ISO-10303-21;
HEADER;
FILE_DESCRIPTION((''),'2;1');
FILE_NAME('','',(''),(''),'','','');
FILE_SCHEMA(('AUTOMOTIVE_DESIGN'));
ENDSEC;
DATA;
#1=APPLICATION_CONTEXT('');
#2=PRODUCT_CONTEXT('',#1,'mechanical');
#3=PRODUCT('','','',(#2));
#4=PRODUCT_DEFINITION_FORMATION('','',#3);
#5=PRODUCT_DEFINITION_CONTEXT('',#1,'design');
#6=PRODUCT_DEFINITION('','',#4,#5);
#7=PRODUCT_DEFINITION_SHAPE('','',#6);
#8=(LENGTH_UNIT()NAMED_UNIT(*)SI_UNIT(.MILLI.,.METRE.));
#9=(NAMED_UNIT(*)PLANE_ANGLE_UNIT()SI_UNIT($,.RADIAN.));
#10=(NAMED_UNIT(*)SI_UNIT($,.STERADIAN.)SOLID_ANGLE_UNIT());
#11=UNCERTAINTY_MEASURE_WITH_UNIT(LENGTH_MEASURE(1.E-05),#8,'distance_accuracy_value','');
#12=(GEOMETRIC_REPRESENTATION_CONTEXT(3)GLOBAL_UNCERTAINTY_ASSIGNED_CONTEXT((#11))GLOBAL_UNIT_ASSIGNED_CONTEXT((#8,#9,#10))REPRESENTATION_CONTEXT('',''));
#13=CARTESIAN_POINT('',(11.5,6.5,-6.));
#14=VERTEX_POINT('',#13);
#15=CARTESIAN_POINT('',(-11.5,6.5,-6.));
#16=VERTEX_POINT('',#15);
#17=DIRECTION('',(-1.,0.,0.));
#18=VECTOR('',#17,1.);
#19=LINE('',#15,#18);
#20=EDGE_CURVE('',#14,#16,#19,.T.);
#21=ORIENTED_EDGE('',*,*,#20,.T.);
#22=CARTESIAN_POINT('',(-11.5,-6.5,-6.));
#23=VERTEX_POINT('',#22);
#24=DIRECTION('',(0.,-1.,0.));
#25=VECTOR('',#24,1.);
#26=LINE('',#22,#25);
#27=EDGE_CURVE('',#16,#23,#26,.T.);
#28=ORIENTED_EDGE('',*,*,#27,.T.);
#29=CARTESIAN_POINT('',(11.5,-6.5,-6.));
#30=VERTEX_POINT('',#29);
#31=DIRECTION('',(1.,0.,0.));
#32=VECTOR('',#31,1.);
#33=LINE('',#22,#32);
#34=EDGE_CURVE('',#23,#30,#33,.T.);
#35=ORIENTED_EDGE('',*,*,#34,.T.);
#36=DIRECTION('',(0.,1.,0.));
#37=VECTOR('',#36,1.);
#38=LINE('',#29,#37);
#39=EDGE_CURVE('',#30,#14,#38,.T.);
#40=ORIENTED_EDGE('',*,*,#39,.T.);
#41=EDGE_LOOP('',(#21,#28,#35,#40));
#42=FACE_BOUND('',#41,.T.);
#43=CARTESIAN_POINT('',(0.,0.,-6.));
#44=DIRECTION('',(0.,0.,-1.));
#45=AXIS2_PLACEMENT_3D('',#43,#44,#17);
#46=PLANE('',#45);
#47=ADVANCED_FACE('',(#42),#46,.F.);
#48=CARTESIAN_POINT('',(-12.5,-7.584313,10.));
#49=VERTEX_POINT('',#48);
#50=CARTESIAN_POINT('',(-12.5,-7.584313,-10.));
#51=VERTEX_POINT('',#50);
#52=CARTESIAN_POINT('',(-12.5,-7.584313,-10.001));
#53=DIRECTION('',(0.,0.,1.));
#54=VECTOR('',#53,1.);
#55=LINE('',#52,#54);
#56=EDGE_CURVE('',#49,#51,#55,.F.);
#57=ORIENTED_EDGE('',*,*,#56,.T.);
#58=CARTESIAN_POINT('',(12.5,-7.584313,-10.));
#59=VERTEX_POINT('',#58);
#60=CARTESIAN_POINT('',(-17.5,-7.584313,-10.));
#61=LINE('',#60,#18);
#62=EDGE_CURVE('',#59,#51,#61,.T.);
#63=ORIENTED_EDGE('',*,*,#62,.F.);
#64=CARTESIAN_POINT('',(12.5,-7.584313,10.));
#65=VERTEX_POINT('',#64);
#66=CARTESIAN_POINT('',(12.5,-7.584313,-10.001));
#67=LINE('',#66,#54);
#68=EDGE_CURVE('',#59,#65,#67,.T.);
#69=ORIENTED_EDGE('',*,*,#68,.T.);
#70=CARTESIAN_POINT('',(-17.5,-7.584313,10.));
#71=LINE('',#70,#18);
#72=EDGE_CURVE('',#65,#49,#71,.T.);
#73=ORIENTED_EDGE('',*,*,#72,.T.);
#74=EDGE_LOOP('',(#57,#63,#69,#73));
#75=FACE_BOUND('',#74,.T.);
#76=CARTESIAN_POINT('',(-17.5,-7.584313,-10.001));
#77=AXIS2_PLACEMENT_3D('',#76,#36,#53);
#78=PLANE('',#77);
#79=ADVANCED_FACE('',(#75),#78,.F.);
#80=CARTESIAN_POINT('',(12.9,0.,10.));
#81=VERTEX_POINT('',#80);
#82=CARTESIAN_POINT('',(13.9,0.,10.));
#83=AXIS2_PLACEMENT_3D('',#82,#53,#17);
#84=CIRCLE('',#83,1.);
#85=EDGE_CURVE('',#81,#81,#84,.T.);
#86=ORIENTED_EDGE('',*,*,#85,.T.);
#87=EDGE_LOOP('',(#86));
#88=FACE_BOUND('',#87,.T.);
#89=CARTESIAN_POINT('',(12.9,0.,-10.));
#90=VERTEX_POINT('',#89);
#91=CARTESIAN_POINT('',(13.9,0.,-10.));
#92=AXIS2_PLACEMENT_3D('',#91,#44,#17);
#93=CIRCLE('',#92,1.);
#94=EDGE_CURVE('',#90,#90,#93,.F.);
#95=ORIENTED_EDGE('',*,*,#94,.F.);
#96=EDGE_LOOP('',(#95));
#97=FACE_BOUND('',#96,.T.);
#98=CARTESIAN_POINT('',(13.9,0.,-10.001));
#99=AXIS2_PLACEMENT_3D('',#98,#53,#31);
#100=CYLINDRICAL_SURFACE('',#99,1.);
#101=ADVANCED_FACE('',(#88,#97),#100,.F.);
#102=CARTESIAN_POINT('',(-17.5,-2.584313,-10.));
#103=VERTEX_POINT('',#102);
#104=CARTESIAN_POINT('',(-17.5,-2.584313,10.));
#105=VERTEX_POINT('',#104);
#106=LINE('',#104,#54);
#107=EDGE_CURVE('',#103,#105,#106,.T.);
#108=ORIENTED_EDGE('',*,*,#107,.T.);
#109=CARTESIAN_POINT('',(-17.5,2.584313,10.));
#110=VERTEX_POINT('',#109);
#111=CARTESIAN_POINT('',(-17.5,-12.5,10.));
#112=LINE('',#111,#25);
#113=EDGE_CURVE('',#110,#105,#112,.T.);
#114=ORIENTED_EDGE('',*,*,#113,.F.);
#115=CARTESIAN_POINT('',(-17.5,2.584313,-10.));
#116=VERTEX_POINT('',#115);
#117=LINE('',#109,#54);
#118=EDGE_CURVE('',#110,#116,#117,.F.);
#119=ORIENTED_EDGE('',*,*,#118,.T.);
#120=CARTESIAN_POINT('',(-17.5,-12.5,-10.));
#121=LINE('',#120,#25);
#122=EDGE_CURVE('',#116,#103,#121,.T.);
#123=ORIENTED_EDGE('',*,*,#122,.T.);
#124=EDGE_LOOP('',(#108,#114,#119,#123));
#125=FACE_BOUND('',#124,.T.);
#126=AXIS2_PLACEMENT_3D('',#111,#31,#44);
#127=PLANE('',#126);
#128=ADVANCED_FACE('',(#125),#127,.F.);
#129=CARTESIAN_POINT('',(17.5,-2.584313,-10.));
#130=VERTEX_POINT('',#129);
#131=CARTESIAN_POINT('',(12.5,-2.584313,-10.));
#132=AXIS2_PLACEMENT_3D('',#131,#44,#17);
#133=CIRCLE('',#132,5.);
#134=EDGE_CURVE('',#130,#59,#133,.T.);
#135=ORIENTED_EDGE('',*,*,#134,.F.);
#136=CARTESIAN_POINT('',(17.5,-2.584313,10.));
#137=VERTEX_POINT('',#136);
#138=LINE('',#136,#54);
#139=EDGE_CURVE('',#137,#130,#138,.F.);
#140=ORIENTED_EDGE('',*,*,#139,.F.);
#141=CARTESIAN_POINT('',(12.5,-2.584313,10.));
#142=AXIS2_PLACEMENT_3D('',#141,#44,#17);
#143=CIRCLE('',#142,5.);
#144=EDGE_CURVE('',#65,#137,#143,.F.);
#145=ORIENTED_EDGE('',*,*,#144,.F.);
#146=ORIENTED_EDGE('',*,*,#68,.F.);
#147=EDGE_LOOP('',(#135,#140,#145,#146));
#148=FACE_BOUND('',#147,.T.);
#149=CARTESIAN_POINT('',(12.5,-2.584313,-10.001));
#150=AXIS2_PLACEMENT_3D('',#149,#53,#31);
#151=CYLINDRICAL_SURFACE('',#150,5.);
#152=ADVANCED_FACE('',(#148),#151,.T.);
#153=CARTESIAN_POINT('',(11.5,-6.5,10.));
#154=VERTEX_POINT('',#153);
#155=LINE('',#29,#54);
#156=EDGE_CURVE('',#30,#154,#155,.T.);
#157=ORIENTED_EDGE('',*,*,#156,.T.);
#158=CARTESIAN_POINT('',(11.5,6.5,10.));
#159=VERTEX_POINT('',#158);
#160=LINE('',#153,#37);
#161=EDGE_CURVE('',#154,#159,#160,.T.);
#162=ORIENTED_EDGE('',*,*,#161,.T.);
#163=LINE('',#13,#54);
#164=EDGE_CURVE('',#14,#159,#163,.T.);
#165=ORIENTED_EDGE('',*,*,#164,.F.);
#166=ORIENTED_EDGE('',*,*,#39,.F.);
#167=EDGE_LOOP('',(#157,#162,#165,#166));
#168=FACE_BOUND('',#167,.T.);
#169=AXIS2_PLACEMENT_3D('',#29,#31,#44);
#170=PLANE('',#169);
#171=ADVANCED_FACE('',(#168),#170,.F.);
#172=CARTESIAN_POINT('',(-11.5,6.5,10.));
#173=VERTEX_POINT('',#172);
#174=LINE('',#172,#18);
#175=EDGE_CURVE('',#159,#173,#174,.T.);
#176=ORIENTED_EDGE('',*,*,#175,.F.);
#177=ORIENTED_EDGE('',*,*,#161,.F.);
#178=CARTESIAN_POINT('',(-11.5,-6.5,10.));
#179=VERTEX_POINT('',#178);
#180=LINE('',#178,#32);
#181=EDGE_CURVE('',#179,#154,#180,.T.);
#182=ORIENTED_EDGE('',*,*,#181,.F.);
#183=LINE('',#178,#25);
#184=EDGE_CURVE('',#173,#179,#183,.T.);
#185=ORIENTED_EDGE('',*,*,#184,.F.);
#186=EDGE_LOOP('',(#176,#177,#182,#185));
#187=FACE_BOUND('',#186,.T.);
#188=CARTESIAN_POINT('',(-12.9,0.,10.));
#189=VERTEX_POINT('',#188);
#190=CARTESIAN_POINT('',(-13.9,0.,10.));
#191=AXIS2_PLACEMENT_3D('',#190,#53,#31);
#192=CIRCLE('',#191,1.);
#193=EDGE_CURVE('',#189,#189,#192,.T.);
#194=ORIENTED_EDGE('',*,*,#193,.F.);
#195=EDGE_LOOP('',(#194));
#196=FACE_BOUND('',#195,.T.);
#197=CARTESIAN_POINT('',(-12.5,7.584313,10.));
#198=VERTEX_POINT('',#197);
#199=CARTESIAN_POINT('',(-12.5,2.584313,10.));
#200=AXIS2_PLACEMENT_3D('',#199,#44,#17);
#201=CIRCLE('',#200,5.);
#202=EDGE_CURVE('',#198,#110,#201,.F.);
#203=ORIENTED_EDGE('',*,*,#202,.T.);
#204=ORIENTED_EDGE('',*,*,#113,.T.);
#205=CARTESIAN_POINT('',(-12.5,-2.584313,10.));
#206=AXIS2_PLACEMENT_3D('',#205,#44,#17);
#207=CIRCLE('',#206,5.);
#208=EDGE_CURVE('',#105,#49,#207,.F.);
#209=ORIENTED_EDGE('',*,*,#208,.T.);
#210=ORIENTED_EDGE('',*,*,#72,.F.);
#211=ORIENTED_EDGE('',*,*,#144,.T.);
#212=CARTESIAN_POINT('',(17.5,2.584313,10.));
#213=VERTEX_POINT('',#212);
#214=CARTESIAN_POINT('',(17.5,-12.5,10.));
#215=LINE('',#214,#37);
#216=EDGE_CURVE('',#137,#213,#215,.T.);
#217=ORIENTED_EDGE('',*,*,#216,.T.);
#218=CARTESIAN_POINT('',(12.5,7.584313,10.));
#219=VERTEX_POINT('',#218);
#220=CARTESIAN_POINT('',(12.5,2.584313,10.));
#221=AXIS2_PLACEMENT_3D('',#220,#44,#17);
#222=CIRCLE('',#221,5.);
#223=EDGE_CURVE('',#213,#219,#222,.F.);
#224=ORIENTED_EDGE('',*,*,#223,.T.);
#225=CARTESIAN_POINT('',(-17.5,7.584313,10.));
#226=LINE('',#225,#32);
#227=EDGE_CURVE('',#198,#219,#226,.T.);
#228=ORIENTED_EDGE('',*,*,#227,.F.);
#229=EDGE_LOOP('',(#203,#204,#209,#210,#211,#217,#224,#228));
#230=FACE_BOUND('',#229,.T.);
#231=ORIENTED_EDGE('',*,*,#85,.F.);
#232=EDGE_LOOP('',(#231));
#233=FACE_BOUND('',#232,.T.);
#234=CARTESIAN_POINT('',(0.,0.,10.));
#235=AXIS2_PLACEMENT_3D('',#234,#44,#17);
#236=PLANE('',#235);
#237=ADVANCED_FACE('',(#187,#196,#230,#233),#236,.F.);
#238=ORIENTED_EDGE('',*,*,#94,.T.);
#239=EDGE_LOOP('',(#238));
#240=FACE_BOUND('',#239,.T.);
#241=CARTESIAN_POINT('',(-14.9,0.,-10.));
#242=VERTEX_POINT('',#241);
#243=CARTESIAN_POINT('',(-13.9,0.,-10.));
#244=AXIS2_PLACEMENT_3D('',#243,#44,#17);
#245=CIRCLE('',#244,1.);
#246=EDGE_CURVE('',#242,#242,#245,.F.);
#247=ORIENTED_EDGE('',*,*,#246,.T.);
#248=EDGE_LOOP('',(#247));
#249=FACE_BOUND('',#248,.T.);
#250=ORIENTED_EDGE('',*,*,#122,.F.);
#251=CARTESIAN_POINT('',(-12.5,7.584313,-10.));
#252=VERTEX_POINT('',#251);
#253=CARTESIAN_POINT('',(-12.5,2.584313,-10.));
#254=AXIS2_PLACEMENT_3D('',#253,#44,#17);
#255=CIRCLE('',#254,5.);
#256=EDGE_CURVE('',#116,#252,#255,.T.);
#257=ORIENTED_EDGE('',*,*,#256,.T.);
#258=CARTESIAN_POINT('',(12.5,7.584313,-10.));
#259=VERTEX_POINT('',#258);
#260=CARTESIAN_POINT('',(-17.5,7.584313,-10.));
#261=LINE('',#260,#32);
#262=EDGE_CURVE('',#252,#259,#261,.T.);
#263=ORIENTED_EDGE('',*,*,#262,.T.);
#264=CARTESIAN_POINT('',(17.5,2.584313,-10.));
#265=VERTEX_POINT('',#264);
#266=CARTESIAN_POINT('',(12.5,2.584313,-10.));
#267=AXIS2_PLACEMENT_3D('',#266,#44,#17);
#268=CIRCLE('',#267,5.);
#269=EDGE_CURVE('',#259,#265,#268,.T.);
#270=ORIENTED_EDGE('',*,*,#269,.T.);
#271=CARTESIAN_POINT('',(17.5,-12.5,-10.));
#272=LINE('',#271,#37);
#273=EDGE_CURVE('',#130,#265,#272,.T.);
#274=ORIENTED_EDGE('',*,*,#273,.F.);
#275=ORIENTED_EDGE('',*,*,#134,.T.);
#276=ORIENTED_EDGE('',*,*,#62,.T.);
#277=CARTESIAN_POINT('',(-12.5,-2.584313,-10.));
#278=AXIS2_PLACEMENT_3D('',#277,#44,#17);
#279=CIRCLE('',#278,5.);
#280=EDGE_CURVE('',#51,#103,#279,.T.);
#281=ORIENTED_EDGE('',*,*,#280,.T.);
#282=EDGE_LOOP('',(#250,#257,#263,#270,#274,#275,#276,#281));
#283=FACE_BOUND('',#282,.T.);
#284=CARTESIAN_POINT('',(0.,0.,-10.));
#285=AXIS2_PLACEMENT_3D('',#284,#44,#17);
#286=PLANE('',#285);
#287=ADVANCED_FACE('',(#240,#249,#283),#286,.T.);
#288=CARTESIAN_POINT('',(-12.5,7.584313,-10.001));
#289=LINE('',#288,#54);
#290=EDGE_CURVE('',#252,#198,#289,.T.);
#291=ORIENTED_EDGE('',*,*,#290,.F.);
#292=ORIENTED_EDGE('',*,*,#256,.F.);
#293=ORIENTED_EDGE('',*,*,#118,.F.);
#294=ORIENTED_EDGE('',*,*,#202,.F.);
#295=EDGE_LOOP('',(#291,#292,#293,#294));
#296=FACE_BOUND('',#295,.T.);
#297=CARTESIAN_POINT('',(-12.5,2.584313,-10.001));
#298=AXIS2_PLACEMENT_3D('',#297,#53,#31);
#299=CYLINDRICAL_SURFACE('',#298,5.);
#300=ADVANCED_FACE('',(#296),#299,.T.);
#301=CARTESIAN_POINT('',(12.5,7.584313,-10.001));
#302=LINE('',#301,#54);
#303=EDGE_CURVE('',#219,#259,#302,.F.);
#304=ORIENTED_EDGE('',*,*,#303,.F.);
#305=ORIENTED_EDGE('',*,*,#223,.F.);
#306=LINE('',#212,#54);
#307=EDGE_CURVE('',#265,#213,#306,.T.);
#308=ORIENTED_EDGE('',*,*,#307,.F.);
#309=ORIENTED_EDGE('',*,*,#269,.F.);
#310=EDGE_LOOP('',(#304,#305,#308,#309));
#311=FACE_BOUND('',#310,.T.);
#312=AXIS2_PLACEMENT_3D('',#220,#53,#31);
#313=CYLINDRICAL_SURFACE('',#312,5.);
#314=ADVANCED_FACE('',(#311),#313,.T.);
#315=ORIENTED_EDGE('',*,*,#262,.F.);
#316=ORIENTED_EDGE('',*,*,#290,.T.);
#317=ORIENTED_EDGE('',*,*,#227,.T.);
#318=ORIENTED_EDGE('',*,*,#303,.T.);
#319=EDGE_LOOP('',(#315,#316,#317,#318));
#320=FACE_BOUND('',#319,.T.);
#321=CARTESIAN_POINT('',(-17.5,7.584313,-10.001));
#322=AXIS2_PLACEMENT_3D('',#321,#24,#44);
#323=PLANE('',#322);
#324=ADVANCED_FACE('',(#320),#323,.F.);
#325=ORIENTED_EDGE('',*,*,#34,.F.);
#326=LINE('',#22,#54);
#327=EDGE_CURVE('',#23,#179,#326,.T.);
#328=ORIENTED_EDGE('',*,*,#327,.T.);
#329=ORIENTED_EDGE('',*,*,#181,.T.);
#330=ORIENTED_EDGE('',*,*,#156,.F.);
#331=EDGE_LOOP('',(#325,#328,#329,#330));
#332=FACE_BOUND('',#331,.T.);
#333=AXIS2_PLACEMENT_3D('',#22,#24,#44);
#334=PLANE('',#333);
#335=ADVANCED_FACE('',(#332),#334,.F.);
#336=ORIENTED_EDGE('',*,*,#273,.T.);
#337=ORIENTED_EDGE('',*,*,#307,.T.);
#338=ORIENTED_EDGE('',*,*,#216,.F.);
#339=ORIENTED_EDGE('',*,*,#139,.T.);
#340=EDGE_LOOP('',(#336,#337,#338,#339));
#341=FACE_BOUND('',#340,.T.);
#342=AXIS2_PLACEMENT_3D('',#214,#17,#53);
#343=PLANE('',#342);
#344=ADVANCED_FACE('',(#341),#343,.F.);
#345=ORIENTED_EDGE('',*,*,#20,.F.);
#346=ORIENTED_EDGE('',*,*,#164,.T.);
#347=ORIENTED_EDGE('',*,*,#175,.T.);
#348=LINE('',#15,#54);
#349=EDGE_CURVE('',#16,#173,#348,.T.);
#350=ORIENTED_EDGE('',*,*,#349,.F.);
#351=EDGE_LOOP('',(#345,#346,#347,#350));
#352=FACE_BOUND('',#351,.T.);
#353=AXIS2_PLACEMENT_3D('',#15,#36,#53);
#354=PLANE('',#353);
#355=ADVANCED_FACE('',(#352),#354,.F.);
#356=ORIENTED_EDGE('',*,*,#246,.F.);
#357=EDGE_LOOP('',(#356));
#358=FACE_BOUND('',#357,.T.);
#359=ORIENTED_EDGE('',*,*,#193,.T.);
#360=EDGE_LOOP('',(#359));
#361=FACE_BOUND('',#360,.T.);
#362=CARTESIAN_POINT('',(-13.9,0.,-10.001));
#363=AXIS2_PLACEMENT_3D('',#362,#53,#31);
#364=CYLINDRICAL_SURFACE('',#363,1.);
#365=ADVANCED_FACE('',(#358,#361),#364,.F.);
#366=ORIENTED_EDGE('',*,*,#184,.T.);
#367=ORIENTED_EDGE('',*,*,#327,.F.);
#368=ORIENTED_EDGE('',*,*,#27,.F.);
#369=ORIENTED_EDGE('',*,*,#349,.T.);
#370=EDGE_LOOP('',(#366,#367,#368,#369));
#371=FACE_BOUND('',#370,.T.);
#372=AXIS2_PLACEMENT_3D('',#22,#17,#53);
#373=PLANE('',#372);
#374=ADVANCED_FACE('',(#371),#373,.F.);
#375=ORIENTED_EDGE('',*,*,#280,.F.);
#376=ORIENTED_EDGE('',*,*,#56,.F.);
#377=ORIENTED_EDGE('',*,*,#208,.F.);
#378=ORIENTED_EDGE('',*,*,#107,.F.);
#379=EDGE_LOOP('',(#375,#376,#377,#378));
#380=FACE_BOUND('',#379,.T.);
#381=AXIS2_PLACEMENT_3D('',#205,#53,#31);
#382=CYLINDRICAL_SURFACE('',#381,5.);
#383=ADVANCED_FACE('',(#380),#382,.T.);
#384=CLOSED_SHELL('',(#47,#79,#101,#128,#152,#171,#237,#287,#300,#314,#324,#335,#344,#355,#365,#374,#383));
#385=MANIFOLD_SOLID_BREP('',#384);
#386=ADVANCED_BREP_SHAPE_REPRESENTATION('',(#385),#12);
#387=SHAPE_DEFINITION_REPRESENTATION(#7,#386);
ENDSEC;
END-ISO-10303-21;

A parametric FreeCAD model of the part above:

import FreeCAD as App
import Part
import Sketcher

V = App.Vector


def edges_at(feature, points):
    """Names of the edges that pass closest to the given points."""
    edges = feature.Shape.Edges
    near = lambda p: min(range(len(edges)), key=lambda i: edges[i].distToShape(Part.Vertex(*p))[0])
    return sorted({f"Edge{near(p) + 1}" for p in points})

doc = App.newDocument("Part")
params = doc.addObject("Spreadsheet::Sheet", "Params")
for row, (alias, value) in enumerate([
    ("sketch1_width", "35 mm"),
    ("sketch1_height", "25 mm"),
    ("pad1_length", "20 mm"),
    ("sketch2_width", "23 mm"),
    ("sketch2_height", "13 mm"),
    ("pocket1_length", "16 mm"),
    ("sketch3_width", "35 mm"),
    ("sketch4_width", "35 mm"),
    ("fillet_radius", "5 mm"),
    ("fillet2_radius", "5 mm"),
    ("fillet3_radius", "5 mm"),
    ("fillet4_radius", "5 mm"),
    ("sketch5_diameter", "2 mm"),
    ("sketch6_diameter", "2 mm"),
], start=1):
    params.set(f"A{row}", alias)
    params.set(f"B{row}", "=" + value)
    params.setAlias(f"B{row}", alias)

body = doc.addObject("PartDesign::Body", "Body")

# Sketch on XY plane
sketch1 = doc.addObject("Sketcher::SketchObject", "Sketch")
body.addObject(sketch1)
sketch1.AttachmentSupport = (doc.XY_Plane, [""])
sketch1.MapMode = "FlatFace"
sketch1.addGeometry([
    Part.LineSegment(V(-18, 12, 0), V(-18, -12, 0)),
    Part.LineSegment(V(-18, -12, 0), V(18, -12, 0)),
    Part.LineSegment(V(18, -12, 0), V(18, 12, 0)),
    Part.LineSegment(V(18, 12, 0), V(-18, 12, 0)),
], False)
sketch1.addConstraint([
    Sketcher.Constraint("Coincident", 0, 2, 1, 1),
    Sketcher.Constraint("Coincident", 1, 2, 2, 1),
    Sketcher.Constraint("Coincident", 2, 2, 3, 1),
    Sketcher.Constraint("Coincident", 3, 2, 0, 1),
    Sketcher.Constraint("Vertical", 0),
    Sketcher.Constraint("Horizontal", 1),
    Sketcher.Constraint("Vertical", 2),
    Sketcher.Constraint("Horizontal", 3),
    Sketcher.Constraint("Symmetric", 0, 2, 2, 2, -1, 1),
    Sketcher.Constraint("DistanceX", 1, 1, 1, 2, 35.0),
    Sketcher.Constraint("DistanceY", 0, 2, 0, 1, 25.0),
])
sketch1.setExpression("Constraints[9]", "Params.sketch1_width")
sketch1.setExpression("Constraints[10]", "Params.sketch1_height")
pad1 = doc.addObject("PartDesign::Pad", "Pad")
body.addObject(pad1)
pad1.Profile = sketch1
pad1.setExpression("Length", "Params.pad1_length")
pad1.Midplane = True

# Sketch on XY plane
sketch2 = doc.addObject("Sketcher::SketchObject", "Sketch001")
body.addObject(sketch2)
sketch2.AttachmentSupport = (doc.XY_Plane, [""])
sketch2.MapMode = "FlatFace"
sketch2.AttachmentOffset = App.Placement(V(0, 0, 10), App.Rotation())
sketch2.addGeometry([
    Part.LineSegment(V(-12, 6, 0), V(-12, -6, 0)),
    Part.LineSegment(V(-12, -6, 0), V(12, -6, 0)),
    Part.LineSegment(V(12, -6, 0), V(12, 6, 0)),
    Part.LineSegment(V(12, 6, 0), V(-12, 6, 0)),
], False)
sketch2.addConstraint([
    Sketcher.Constraint("Coincident", 0, 2, 1, 1),
    Sketcher.Constraint("Coincident", 1, 2, 2, 1),
    Sketcher.Constraint("Coincident", 2, 2, 3, 1),
    Sketcher.Constraint("Coincident", 3, 2, 0, 1),
    Sketcher.Constraint("Vertical", 0),
    Sketcher.Constraint("Horizontal", 1),
    Sketcher.Constraint("Vertical", 2),
    Sketcher.Constraint("Horizontal", 3),
    Sketcher.Constraint("Symmetric", 0, 2, 2, 2, -1, 1),
    Sketcher.Constraint("DistanceX", 1, 1, 1, 2, 23.0),
    Sketcher.Constraint("DistanceY", 0, 2, 0, 1, 13.0),
])
sketch2.setExpression("Constraints[9]", "Params.sketch2_width")
sketch2.setExpression("Constraints[10]", "Params.sketch2_height")
pocket1 = doc.addObject("PartDesign::Pocket", "Pocket")
body.addObject(pocket1)
pocket1.Profile = sketch2
pocket1.setExpression("Length", "Params.pocket1_length")

# Sketch on XY plane
sketch3 = doc.addObject("Sketcher::SketchObject", "Sketch002")
body.addObject(sketch3)
sketch3.AttachmentSupport = (doc.XY_Plane, [""])
sketch3.MapMode = "FlatFace"
sketch3.AttachmentOffset = App.Placement(V(0, 0, 10), App.Rotation())
sketch3.addGeometry([
    Part.LineSegment(V(-17.5, 12.5, 0), V(-17.5, 7.6, 0)),
    Part.LineSegment(V(-17.5, 7.6, 0), V(17.5, 7.6, 0)),
    Part.LineSegment(V(17.5, 7.6, 0), V(17.5, 12.5, 0)),
    Part.LineSegment(V(17.5, 12.5, 0), V(-17.5, 12.5, 0)),
], False)
sketch3.addConstraint([
    Sketcher.Constraint("Coincident", 0, 2, 1, 1),
    Sketcher.Constraint("Coincident", 1, 2, 2, 1),
    Sketcher.Constraint("Coincident", 2, 2, 3, 1),
    Sketcher.Constraint("Coincident", 3, 2, 0, 1),
    Sketcher.Constraint("Vertical", 0),
    Sketcher.Constraint("Horizontal", 1),
    Sketcher.Constraint("Vertical", 2),
    Sketcher.Constraint("Horizontal", 3),
    Sketcher.Constraint("DistanceX", 1, 1, 1, 2, 35.0),
    Sketcher.Constraint("DistanceX", 0, 2, -1, 1, 17.5),
    Sketcher.Constraint("DistanceY", -1, 1, 2, 2, 12.5),
    Sketcher.Constraint("DistanceY", 0, 2, 0, 1, 4.915687),
])
sketch3.setExpression("Constraints[8]", "Params.sketch3_width")
pocket2 = doc.addObject("PartDesign::Pocket", "Pocket001")
body.addObject(pocket2)
pocket2.Profile = sketch3
pocket2.Type = "UpToFirst"

# Sketch on XY plane
sketch4 = doc.addObject("Sketcher::SketchObject", "Sketch003")
body.addObject(sketch4)
sketch4.AttachmentSupport = (doc.XY_Plane, [""])
sketch4.MapMode = "FlatFace"
sketch4.AttachmentOffset = App.Placement(V(0, 0, 10), App.Rotation())
sketch4.addGeometry([
    Part.LineSegment(V(-17.5, -7.6, 0), V(-17.5, -12.5, 0)),
    Part.LineSegment(V(-17.5, -12.5, 0), V(17.5, -12.5, 0)),
    Part.LineSegment(V(17.5, -12.5, 0), V(17.5, -7.6, 0)),
    Part.LineSegment(V(17.5, -7.6, 0), V(-17.5, -7.6, 0)),
], False)
sketch4.addConstraint([
    Sketcher.Constraint("Coincident", 0, 2, 1, 1),
    Sketcher.Constraint("Coincident", 1, 2, 2, 1),
    Sketcher.Constraint("Coincident", 2, 2, 3, 1),
    Sketcher.Constraint("Coincident", 3, 2, 0, 1),
    Sketcher.Constraint("Vertical", 0),
    Sketcher.Constraint("Horizontal", 1),
    Sketcher.Constraint("Vertical", 2),
    Sketcher.Constraint("Horizontal", 3),
    Sketcher.Constraint("DistanceX", 1, 1, 1, 2, 35.0),
    Sketcher.Constraint("DistanceX", 0, 2, -1, 1, 17.5),
    Sketcher.Constraint("DistanceY", 0, 2, -1, 1, 12.5),
    Sketcher.Constraint("DistanceY", 0, 2, 0, 1, 4.915687),
])
sketch4.setExpression("Constraints[8]", "Params.sketch4_width")
pocket3 = doc.addObject("PartDesign::Pocket", "Pocket002")
body.addObject(pocket3)
pocket3.Profile = sketch4
pocket3.Type = "UpToFirst"
doc.recompute()

fillet = doc.addObject("PartDesign::Fillet", "Fillet")
body.addObject(fillet)
fillet.Base = (pocket3, edges_at(pocket3, [(17.5, -7.584, 0)]))
fillet.setExpression("Radius", "Params.fillet_radius")
doc.recompute()

fillet2 = doc.addObject("PartDesign::Fillet", "Fillet001")
body.addObject(fillet2)
fillet2.Base = (fillet, edges_at(fillet, [(17.5, 7.584, 0)]))
fillet2.setExpression("Radius", "Params.fillet2_radius")
doc.recompute()

fillet3 = doc.addObject("PartDesign::Fillet", "Fillet002")
body.addObject(fillet3)
fillet3.Base = (fillet2, edges_at(fillet2, [(-17.5, 7.584, 0)]))
fillet3.setExpression("Radius", "Params.fillet3_radius")
doc.recompute()

fillet4 = doc.addObject("PartDesign::Fillet", "Fillet003")
body.addObject(fillet4)
fillet4.Base = (fillet3, edges_at(fillet3, [(-17.5, -7.584, 0)]))
fillet4.setExpression("Radius", "Params.fillet4_radius")

# Sketch on XY plane
sketch5 = doc.addObject("Sketcher::SketchObject", "Sketch004")
body.addObject(sketch5)
sketch5.AttachmentSupport = (doc.XY_Plane, [""])
sketch5.MapMode = "FlatFace"
sketch5.AttachmentOffset = App.Placement(V(0, 0, 10), App.Rotation())
sketch5.addGeometry(Part.Circle(V(-13.9, 0, 0), V(0, 0, 1), 1), False)
sketch5.addConstraint([
    Sketcher.Constraint("PointOnObject", 0, 3, -1),
    Sketcher.Constraint("Diameter", 0, 2.0),
    Sketcher.Constraint("DistanceX", 0, 3, -1, 1, 13.9),
])
sketch5.setExpression("Constraints[1]", "Params.sketch5_diameter")
pocket4 = doc.addObject("PartDesign::Pocket", "Pocket003")
body.addObject(pocket4)
pocket4.Profile = sketch5
pocket4.Type = "UpToFirst"

# Sketch on XY plane
sketch6 = doc.addObject("Sketcher::SketchObject", "Sketch005")
body.addObject(sketch6)
sketch6.AttachmentSupport = (doc.XY_Plane, [""])
sketch6.MapMode = "FlatFace"
sketch6.AttachmentOffset = App.Placement(V(0, 0, 10), App.Rotation())
sketch6.addGeometry(Part.Circle(V(13.9, 0, 0), V(0, 0, 1), 1), False)
sketch6.addConstraint([
    Sketcher.Constraint("PointOnObject", 0, 3, -1),
    Sketcher.Constraint("Diameter", 0, 2.0),
    Sketcher.Constraint("DistanceX", -1, 1, 0, 3, 13.9),
])
sketch6.setExpression("Constraints[1]", "Params.sketch6_diameter")
pocket5 = doc.addObject("PartDesign::Pocket", "Pocket004")
body.addObject(pocket5)
pocket5.Profile = sketch6
pocket5.Type = "UpToFirst"

doc.recompute()
